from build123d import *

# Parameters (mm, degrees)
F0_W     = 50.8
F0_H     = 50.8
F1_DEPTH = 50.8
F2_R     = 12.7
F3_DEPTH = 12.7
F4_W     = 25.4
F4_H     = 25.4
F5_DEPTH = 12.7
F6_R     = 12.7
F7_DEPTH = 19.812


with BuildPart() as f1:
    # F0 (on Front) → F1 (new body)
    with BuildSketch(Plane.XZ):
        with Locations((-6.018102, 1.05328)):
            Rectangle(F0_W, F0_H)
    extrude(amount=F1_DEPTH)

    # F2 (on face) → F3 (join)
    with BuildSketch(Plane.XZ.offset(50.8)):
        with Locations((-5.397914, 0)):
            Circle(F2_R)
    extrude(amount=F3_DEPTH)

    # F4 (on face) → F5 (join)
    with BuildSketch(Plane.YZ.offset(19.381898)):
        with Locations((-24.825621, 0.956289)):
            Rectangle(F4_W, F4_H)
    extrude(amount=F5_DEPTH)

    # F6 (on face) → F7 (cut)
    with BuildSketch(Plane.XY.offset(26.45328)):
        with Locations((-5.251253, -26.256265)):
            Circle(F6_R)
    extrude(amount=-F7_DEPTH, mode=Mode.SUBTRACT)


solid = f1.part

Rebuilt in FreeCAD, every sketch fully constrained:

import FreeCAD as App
import Part
import Sketcher
from FreeCAD import Vector
Q = App.Units.Quantity

doc = App.newDocument("Part")
body = doc.addObject("PartDesign::Body", "Body")

sketch1 = doc.addObject("Sketcher::SketchObject", "Sketch")
body.addObject(sketch1)
sketch1.AttachmentSupport = (doc.XZ_Plane, [""])
sketch1.MapMode = "FlatFace"
sketch1.addGeometry(Part.LineSegment(Vector(-31, 26, 0), Vector(-31, -24, 0)), False)
sketch1.addGeometry(Part.LineSegment(Vector(-31, -24, 0), Vector(19, -24, 0)), False)
sketch1.addGeometry(Part.LineSegment(Vector(19, -24, 0), Vector(19, 26, 0)), False)
sketch1.addGeometry(Part.LineSegment(Vector(19, 26, 0), Vector(-31, 26, 0)), False)
sketch1.addConstraint(Sketcher.Constraint("Coincident", 0, 2, 1, 1))
sketch1.addConstraint(Sketcher.Constraint("Coincident", 1, 2, 2, 1))
sketch1.addConstraint(Sketcher.Constraint("Coincident", 2, 2, 3, 1))
sketch1.addConstraint(Sketcher.Constraint("Coincident", 3, 2, 0, 1))
sketch1.addConstraint(Sketcher.Constraint("Vertical", 0))
sketch1.addConstraint(Sketcher.Constraint("Horizontal", 1))
sketch1.addConstraint(Sketcher.Constraint("Vertical", 2))
sketch1.addConstraint(Sketcher.Constraint("Horizontal", 3))
sketch1.addConstraint(Sketcher.Constraint("Equal", 3, 0))
sketch1.addConstraint(Sketcher.Constraint("DistanceX", 1, 1, 1, 2, Q("2 in")))
sketch1.addConstraint(Sketcher.Constraint("DistanceY", 0, 2, -1, 1, Q("24.34672 mm")))
sketch1.addConstraint(Sketcher.Constraint("DistanceX", 0, 2, -1, 1, Q("31.418102 mm")))
pad1 = doc.addObject("PartDesign::Pad", "Pad")
body.addObject(pad1)
pad1.Profile = sketch1
pad1.Length = Q("2 in")

sketch2 = doc.addObject("Sketcher::SketchObject", "Sketch001")
body.addObject(sketch2)
sketch2.AttachmentSupport = (doc.XZ_Plane, [""])
sketch2.MapMode = "FlatFace"
sketch2.AttachmentOffset = App.Placement(Vector(0, 0, 2 * 25.4), App.Rotation())
sketch2.addGeometry(Part.Circle(Vector(-5, 0, 0), Vector(0, 0, 1), 13), False)
sketch2.addConstraint(Sketcher.Constraint("PointOnObject", 0, 3, -1))
sketch2.addConstraint(Sketcher.Constraint("Diameter", 0, Q("1 in")))
sketch2.addConstraint(Sketcher.Constraint("DistanceX", 0, 3, -1, 1, Q("5.397914 mm")))
pad2 = doc.addObject("PartDesign::Pad", "Pad001")
body.addObject(pad2)
pad2.Profile = sketch2
pad2.Length = Q("0.5 in")

sketch3 = doc.addObject("Sketcher::SketchObject", "Sketch002")
body.addObject(sketch3)
sketch3.AttachmentSupport = (doc.YZ_Plane, [""])
sketch3.MapMode = "FlatFace"
sketch3.AttachmentOffset = App.Placement(Vector(0, 0, 19.381898), App.Rotation())
sketch3.addGeometry(Part.LineSegment(Vector(-38, 14, 0), Vector(-38, -12, 0)), False)
sketch3.addGeometry(Part.LineSegment(Vector(-38, -12, 0), Vector(-12, -12, 0)), False)
sketch3.addGeometry(Part.LineSegment(Vector(-12, -12, 0), Vector(-12, 14, 0)), False)
sketch3.addGeometry(Part.LineSegment(Vector(-12, 14, 0), Vector(-38, 14, 0)), False)
sketch3.addConstraint(Sketcher.Constraint("Coincident", 0, 2, 1, 1))
sketch3.addConstraint(Sketcher.Constraint("Coincident", 1, 2, 2, 1))
sketch3.addConstraint(Sketcher.Constraint("Coincident", 2, 2, 3, 1))
sketch3.addConstraint(Sketcher.Constraint("Coincident", 3, 2, 0, 1))
sketch3.addConstraint(Sketcher.Constraint("Vertical", 0))
sketch3.addConstraint(Sketcher.Constraint("Horizontal", 1))
sketch3.addConstraint(Sketcher.Constraint("Vertical", 2))
sketch3.addConstraint(Sketcher.Constraint("Horizontal", 3))
sketch3.addConstraint(Sketcher.Constraint("Equal", 3, 0))
sketch3.addConstraint(Sketcher.Constraint("DistanceX", 1, 1, 1, 2, Q("1 in")))
sketch3.addConstraint(Sketcher.Constraint("DistanceX", 0, 2, -1, 1, Q("37.525621 mm")))
sketch3.addConstraint(Sketcher.Constraint("DistanceY", 0, 2, -1, 1, Q("11.743711 mm")))
pad3 = doc.addObject("PartDesign::Pad", "Pad002")
body.addObject(pad3)
pad3.Profile = sketch3
pad3.Length = Q("0.5 in")

sketch4 = doc.addObject("Sketcher::SketchObject", "Sketch003")
body.addObject(sketch4)
sketch4.AttachmentSupport = (doc.XY_Plane, [""])
sketch4.MapMode = "FlatFace"
sketch4.AttachmentOffset = App.Placement(Vector(0, 0, 26.45328), App.Rotation())
sketch4.addGeometry(Part.Circle(Vector(-5, -26, 0), Vector(0, 0, 1), 13), False)
sketch4.addConstraint(Sketcher.Constraint("Diameter", 0, Q("1 in")))
sketch4.addConstraint(Sketcher.Constraint("DistanceX", 0, 3, -1, 1, Q("5.251253 mm")))
sketch4.addConstraint(Sketcher.Constraint("DistanceY", 0, 3, -1, 1, Q("26.256265 mm")))
pocket1 = doc.addObject("PartDesign::Pocket", "Pocket")
body.addObject(pocket1)
pocket1.Profile = sketch4
pocket1.Length = Q("0.78 in")

doc.recompute()
